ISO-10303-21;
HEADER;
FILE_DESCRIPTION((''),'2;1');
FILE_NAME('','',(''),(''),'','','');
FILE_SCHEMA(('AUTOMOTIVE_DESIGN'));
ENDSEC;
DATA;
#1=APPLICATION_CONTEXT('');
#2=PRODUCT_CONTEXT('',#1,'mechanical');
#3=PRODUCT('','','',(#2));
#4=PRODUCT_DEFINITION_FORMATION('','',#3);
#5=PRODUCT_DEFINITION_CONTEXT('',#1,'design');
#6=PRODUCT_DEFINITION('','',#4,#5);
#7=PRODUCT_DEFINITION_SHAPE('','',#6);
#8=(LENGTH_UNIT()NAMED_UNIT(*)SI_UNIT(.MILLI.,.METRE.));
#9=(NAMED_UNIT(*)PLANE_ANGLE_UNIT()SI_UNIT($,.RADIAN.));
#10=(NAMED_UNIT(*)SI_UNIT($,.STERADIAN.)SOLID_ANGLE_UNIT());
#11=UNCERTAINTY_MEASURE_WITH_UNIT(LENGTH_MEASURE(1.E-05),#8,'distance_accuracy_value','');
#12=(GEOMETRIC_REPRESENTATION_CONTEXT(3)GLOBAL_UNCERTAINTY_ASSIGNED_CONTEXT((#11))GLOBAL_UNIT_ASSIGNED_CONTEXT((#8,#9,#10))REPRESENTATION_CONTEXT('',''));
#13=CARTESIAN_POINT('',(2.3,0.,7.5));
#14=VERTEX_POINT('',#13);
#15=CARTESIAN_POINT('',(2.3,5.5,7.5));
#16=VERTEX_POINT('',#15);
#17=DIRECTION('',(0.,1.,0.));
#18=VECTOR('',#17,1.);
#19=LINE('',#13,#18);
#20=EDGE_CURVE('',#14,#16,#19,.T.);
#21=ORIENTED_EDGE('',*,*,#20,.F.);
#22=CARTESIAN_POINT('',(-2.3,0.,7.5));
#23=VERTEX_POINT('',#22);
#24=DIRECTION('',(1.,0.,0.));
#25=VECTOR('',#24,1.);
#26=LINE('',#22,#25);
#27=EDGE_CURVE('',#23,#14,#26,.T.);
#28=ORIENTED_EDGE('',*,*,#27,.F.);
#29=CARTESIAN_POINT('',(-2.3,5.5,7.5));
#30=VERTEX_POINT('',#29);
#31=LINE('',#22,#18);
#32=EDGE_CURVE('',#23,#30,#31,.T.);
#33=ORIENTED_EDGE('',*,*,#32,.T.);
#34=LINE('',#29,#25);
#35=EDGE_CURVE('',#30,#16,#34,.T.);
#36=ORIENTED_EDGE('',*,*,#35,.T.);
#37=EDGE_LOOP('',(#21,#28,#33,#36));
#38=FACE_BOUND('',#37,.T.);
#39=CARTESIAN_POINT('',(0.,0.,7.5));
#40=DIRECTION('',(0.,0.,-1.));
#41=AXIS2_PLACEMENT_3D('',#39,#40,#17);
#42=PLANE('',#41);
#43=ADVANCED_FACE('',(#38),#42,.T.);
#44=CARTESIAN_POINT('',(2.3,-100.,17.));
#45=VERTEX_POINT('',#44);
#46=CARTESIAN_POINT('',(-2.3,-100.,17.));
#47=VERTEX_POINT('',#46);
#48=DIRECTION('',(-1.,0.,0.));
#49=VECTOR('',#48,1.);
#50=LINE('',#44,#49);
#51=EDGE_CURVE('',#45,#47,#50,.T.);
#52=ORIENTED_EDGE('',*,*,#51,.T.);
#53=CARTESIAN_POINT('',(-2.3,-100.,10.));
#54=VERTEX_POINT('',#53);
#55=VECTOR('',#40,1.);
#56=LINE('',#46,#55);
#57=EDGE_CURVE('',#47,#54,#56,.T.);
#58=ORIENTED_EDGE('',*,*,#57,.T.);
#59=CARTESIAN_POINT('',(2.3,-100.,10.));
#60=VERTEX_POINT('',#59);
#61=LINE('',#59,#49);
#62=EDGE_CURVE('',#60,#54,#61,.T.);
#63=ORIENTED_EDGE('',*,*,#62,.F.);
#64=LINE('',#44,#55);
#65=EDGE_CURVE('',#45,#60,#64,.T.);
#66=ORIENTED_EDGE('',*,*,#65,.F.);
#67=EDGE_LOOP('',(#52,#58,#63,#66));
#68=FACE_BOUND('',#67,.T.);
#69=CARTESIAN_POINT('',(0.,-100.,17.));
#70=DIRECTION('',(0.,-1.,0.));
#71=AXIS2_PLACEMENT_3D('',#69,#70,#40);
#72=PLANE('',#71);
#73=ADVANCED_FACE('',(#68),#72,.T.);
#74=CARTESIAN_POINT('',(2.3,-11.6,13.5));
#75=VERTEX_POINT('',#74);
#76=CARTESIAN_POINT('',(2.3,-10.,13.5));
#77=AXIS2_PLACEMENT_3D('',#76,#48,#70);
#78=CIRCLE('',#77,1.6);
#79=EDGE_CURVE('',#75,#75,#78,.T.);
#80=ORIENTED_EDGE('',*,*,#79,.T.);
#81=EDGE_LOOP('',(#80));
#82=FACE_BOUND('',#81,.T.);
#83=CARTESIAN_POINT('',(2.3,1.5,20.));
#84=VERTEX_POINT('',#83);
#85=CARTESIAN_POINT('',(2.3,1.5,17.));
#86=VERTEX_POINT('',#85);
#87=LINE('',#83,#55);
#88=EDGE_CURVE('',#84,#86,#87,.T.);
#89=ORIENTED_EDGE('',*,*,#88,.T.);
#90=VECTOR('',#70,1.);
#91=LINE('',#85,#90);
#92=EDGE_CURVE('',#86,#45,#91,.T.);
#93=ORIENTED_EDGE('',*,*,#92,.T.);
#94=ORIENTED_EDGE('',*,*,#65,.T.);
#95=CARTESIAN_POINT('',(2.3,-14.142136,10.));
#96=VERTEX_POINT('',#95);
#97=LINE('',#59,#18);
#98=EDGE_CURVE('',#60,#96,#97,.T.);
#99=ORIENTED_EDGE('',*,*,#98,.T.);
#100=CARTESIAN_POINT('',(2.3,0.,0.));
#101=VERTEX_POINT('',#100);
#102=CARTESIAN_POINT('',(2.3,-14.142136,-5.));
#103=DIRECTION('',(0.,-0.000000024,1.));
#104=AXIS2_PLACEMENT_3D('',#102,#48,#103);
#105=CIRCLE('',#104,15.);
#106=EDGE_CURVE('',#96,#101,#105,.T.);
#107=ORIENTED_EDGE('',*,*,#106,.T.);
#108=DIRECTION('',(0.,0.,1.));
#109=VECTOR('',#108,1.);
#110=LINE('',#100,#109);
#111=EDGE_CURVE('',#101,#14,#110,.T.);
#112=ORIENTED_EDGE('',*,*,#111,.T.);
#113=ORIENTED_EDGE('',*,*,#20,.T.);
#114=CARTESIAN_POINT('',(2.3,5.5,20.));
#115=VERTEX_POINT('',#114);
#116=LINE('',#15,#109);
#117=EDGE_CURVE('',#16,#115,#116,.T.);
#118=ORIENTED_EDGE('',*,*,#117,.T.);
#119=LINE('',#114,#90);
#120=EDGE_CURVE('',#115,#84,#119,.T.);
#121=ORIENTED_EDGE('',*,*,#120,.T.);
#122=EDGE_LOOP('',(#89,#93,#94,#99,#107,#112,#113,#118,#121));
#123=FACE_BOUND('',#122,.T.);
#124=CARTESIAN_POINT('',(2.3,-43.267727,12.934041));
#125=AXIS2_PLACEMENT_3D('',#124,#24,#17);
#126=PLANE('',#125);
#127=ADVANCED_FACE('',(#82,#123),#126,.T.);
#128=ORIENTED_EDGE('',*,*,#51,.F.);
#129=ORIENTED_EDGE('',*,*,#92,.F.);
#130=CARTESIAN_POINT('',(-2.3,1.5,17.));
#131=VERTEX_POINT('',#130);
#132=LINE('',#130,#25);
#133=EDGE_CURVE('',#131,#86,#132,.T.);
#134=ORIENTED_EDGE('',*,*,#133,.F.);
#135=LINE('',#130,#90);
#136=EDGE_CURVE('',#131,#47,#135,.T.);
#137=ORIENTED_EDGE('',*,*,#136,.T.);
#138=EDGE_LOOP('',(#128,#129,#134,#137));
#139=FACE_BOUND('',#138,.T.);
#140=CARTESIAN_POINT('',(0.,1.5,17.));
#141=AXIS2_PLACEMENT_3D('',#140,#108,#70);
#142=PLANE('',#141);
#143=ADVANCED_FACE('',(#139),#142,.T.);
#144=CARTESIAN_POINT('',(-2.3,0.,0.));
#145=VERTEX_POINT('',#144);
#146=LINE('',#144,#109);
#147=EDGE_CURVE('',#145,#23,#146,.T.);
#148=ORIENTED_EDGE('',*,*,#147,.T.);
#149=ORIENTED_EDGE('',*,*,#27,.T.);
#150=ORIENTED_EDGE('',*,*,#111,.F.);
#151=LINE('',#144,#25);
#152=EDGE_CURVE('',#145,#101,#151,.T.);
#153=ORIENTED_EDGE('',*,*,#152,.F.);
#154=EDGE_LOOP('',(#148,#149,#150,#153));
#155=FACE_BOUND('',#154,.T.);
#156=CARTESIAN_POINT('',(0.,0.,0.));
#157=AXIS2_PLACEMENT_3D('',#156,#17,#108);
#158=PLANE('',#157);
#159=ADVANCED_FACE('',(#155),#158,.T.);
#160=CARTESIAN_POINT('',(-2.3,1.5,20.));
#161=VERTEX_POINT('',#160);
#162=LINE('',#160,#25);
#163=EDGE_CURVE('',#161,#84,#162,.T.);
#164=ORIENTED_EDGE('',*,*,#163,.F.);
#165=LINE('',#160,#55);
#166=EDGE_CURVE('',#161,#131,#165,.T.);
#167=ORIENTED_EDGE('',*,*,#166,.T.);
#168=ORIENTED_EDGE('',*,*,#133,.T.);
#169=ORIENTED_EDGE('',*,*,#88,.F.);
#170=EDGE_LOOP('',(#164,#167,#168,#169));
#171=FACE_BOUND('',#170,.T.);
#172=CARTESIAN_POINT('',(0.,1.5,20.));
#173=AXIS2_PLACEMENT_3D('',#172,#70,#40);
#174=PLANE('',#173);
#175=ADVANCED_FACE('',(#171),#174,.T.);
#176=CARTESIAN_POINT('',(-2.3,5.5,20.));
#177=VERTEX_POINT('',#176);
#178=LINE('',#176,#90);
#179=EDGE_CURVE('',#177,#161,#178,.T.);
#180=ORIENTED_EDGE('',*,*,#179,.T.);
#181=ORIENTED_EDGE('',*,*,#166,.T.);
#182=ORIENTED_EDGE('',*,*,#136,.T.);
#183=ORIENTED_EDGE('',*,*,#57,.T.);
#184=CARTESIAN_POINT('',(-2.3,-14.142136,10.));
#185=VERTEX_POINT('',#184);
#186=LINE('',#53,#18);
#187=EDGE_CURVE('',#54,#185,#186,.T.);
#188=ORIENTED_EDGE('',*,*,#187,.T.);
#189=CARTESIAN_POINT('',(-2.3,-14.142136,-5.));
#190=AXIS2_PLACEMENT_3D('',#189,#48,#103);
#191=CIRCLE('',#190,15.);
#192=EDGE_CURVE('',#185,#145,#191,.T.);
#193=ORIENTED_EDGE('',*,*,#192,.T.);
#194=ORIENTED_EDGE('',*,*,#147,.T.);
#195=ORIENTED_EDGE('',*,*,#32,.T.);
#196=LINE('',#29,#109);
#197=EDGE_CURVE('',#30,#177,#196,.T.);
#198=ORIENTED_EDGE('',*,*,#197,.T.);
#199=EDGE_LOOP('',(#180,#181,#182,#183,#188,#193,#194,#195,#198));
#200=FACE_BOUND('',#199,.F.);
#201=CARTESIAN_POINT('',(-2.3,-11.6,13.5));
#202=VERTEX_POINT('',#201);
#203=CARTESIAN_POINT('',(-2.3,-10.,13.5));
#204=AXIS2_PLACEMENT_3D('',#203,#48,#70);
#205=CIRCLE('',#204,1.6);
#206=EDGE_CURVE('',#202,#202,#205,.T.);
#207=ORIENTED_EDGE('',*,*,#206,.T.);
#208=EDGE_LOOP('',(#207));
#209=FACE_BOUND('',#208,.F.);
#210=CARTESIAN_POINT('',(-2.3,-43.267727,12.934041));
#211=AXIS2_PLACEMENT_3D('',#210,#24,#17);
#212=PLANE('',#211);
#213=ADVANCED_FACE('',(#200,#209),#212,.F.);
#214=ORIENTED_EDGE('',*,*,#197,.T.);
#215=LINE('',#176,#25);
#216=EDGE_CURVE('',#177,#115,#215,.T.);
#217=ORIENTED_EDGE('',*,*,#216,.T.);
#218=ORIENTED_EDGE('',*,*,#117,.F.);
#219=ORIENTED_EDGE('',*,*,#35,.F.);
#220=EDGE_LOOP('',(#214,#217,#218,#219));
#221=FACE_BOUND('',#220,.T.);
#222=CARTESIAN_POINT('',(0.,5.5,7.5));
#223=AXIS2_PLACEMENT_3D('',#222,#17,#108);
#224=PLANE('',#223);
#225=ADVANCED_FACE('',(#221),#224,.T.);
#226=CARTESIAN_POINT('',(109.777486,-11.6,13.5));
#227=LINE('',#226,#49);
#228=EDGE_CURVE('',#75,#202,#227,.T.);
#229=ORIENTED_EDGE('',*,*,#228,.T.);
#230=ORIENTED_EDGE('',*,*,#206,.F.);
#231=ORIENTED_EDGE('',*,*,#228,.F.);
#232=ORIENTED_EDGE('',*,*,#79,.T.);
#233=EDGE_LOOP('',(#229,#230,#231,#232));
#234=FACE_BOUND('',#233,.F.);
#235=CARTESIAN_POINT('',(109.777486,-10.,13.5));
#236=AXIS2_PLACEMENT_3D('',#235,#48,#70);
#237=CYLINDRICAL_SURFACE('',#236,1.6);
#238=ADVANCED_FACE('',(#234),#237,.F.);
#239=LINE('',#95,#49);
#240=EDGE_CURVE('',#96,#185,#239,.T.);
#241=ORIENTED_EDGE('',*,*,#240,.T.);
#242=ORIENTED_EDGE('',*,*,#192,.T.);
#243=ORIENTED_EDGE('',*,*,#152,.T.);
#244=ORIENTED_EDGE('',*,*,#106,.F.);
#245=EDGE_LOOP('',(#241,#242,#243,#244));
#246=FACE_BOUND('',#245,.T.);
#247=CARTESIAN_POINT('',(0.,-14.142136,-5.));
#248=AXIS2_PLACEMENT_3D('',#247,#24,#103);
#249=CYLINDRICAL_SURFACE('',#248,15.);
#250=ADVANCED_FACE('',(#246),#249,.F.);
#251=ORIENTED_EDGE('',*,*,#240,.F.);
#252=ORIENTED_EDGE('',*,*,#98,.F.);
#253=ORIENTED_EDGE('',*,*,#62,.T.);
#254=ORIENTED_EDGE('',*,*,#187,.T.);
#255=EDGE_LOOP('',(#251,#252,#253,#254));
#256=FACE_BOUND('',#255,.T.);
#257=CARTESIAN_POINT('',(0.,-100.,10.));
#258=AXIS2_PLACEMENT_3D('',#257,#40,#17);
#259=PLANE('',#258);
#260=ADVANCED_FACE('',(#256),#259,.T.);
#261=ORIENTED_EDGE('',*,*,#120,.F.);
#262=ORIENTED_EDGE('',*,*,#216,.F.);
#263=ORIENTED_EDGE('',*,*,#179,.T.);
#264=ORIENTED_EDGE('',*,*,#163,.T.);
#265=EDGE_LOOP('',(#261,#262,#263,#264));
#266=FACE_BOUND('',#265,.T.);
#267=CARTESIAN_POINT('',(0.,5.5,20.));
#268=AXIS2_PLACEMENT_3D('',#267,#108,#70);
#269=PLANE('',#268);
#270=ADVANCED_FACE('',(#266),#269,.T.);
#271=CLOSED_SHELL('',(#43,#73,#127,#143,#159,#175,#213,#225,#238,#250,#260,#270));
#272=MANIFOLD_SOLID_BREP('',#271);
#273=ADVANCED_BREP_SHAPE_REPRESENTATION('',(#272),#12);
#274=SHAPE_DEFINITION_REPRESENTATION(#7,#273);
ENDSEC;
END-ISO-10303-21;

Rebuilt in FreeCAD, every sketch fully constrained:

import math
import FreeCAD as App
import Part
import Sketcher

V = App.Vector

doc = App.newDocument("Part")
body = doc.addObject("PartDesign::Body", "Body")

sketch1 = doc.addObject("Sketcher::SketchObject", "Sketch")
body.addObject(sketch1)
sketch1.AttachmentSupport = (doc.YZ_Plane, [""])
sketch1.MapMode = "FlatFace"
sketch1.addGeometry([
    Part.ArcOfCircle(Part.Circle(V(-14.1, -5, 0), V(0, 0, 1), 15), math.radians(19), math.radians(90)),
    Part.LineSegment(V(0, 0, 0), V(0, 7.5, 0)),
    Part.LineSegment(V(0, 7.5, 0), V(5.5, 7.5, 0)),
    Part.LineSegment(V(5.5, 7.5, 0), V(5.5, 20, 0)),
    Part.LineSegment(V(5.5, 20, 0), V(1.5, 20, 0)),
    Part.LineSegment(V(1.5, 20, 0), V(1.5, 17, 0)),
    Part.LineSegment(V(1.5, 17, 0), V(-100, 17, 0)),
    Part.LineSegment(V(-100, 17, 0), V(-100, 10, 0)),
    Part.LineSegment(V(-100, 10, 0), V(-14.1, 10, 0)),
], False)
sketch1.addConstraint([
    Sketcher.Constraint("Coincident", 0, 1, 1, 1),
    Sketcher.Constraint("Coincident", 1, 2, 2, 1),
    Sketcher.Constraint("Coincident", 2, 2, 3, 1),
    Sketcher.Constraint("Coincident", 3, 2, 4, 1),
    Sketcher.Constraint("Coincident", 4, 2, 5, 1),
    Sketcher.Constraint("Coincident", 5, 2, 6, 1),
    Sketcher.Constraint("Coincident", 6, 2, 7, 1),
    Sketcher.Constraint("Coincident", 7, 2, 8, 1),
    Sketcher.Constraint("Tangent", 8, 2, 0, 2),
    Sketcher.Constraint("Vertical", 1),
    Sketcher.Constraint("Horizontal", 2),
    Sketcher.Constraint("Vertical", 3),
    Sketcher.Constraint("Horizontal", 4),
    Sketcher.Constraint("Vertical", 5),
    Sketcher.Constraint("Horizontal", 6),
    Sketcher.Constraint("Vertical", 7),
    Sketcher.Constraint("Horizontal", 8),
    Sketcher.Constraint("Coincident", 0, 1, -1, 1),
    Sketcher.Constraint("Radius", 0, 15.0),
    Sketcher.Constraint("DistanceX", 4, 2, 4, 1, 4.0),
    Sketcher.Constraint("DistanceY", 5, 2, 5, 1, 3.0),
    Sketcher.Constraint("DistanceY", 7, 2, 7, 1, 7.0),
    Sketcher.Constraint("DistanceX", 2, 1, 2, 2, 5.5),
    Sketcher.Constraint("DistanceX", 6, 2, 6, 1, 101.5),
    Sketcher.Constraint("DistanceY", 1, 1, 1, 2, 7.5),
    Sketcher.Constraint("DistanceY", 3, 1, 3, 2, 12.5),
])
pad1 = doc.addObject("PartDesign::Pad", "Pad")
body.addObject(pad1)
pad1.Profile = sketch1
pad1.Length = 4.6
pad1.Midplane = True

sketch2 = doc.addObject("Sketcher::SketchObject", "Sketch001")
body.addObject(sketch2)
sketch2.AttachmentSupport = (doc.YZ_Plane, [""])
sketch2.MapMode = "FlatFace"
sketch2.AttachmentOffset = App.Placement(V(0, 0, 2.3), App.Rotation())
sketch2.addGeometry(Part.Circle(V(-10, 13.5, 0), V(0, 0, 1), 1.6), False)
sketch2.addConstraint([
    Sketcher.Constraint("Diameter", 0, 3.2),
    Sketcher.Constraint("DistanceX", 0, 3, -1, 1, 10.0),
    Sketcher.Constraint("DistanceY", -1, 1, 0, 3, 13.5),
])
doc.recompute()
hole = doc.addObject("PartDesign::Hole", "Hole")
body.addObject(hole)
hole.Profile = sketch2
hole.ThreadType = "None"
hole.Diameter = 3.2
hole.DepthType = "ThroughAll"

doc.recompute()
